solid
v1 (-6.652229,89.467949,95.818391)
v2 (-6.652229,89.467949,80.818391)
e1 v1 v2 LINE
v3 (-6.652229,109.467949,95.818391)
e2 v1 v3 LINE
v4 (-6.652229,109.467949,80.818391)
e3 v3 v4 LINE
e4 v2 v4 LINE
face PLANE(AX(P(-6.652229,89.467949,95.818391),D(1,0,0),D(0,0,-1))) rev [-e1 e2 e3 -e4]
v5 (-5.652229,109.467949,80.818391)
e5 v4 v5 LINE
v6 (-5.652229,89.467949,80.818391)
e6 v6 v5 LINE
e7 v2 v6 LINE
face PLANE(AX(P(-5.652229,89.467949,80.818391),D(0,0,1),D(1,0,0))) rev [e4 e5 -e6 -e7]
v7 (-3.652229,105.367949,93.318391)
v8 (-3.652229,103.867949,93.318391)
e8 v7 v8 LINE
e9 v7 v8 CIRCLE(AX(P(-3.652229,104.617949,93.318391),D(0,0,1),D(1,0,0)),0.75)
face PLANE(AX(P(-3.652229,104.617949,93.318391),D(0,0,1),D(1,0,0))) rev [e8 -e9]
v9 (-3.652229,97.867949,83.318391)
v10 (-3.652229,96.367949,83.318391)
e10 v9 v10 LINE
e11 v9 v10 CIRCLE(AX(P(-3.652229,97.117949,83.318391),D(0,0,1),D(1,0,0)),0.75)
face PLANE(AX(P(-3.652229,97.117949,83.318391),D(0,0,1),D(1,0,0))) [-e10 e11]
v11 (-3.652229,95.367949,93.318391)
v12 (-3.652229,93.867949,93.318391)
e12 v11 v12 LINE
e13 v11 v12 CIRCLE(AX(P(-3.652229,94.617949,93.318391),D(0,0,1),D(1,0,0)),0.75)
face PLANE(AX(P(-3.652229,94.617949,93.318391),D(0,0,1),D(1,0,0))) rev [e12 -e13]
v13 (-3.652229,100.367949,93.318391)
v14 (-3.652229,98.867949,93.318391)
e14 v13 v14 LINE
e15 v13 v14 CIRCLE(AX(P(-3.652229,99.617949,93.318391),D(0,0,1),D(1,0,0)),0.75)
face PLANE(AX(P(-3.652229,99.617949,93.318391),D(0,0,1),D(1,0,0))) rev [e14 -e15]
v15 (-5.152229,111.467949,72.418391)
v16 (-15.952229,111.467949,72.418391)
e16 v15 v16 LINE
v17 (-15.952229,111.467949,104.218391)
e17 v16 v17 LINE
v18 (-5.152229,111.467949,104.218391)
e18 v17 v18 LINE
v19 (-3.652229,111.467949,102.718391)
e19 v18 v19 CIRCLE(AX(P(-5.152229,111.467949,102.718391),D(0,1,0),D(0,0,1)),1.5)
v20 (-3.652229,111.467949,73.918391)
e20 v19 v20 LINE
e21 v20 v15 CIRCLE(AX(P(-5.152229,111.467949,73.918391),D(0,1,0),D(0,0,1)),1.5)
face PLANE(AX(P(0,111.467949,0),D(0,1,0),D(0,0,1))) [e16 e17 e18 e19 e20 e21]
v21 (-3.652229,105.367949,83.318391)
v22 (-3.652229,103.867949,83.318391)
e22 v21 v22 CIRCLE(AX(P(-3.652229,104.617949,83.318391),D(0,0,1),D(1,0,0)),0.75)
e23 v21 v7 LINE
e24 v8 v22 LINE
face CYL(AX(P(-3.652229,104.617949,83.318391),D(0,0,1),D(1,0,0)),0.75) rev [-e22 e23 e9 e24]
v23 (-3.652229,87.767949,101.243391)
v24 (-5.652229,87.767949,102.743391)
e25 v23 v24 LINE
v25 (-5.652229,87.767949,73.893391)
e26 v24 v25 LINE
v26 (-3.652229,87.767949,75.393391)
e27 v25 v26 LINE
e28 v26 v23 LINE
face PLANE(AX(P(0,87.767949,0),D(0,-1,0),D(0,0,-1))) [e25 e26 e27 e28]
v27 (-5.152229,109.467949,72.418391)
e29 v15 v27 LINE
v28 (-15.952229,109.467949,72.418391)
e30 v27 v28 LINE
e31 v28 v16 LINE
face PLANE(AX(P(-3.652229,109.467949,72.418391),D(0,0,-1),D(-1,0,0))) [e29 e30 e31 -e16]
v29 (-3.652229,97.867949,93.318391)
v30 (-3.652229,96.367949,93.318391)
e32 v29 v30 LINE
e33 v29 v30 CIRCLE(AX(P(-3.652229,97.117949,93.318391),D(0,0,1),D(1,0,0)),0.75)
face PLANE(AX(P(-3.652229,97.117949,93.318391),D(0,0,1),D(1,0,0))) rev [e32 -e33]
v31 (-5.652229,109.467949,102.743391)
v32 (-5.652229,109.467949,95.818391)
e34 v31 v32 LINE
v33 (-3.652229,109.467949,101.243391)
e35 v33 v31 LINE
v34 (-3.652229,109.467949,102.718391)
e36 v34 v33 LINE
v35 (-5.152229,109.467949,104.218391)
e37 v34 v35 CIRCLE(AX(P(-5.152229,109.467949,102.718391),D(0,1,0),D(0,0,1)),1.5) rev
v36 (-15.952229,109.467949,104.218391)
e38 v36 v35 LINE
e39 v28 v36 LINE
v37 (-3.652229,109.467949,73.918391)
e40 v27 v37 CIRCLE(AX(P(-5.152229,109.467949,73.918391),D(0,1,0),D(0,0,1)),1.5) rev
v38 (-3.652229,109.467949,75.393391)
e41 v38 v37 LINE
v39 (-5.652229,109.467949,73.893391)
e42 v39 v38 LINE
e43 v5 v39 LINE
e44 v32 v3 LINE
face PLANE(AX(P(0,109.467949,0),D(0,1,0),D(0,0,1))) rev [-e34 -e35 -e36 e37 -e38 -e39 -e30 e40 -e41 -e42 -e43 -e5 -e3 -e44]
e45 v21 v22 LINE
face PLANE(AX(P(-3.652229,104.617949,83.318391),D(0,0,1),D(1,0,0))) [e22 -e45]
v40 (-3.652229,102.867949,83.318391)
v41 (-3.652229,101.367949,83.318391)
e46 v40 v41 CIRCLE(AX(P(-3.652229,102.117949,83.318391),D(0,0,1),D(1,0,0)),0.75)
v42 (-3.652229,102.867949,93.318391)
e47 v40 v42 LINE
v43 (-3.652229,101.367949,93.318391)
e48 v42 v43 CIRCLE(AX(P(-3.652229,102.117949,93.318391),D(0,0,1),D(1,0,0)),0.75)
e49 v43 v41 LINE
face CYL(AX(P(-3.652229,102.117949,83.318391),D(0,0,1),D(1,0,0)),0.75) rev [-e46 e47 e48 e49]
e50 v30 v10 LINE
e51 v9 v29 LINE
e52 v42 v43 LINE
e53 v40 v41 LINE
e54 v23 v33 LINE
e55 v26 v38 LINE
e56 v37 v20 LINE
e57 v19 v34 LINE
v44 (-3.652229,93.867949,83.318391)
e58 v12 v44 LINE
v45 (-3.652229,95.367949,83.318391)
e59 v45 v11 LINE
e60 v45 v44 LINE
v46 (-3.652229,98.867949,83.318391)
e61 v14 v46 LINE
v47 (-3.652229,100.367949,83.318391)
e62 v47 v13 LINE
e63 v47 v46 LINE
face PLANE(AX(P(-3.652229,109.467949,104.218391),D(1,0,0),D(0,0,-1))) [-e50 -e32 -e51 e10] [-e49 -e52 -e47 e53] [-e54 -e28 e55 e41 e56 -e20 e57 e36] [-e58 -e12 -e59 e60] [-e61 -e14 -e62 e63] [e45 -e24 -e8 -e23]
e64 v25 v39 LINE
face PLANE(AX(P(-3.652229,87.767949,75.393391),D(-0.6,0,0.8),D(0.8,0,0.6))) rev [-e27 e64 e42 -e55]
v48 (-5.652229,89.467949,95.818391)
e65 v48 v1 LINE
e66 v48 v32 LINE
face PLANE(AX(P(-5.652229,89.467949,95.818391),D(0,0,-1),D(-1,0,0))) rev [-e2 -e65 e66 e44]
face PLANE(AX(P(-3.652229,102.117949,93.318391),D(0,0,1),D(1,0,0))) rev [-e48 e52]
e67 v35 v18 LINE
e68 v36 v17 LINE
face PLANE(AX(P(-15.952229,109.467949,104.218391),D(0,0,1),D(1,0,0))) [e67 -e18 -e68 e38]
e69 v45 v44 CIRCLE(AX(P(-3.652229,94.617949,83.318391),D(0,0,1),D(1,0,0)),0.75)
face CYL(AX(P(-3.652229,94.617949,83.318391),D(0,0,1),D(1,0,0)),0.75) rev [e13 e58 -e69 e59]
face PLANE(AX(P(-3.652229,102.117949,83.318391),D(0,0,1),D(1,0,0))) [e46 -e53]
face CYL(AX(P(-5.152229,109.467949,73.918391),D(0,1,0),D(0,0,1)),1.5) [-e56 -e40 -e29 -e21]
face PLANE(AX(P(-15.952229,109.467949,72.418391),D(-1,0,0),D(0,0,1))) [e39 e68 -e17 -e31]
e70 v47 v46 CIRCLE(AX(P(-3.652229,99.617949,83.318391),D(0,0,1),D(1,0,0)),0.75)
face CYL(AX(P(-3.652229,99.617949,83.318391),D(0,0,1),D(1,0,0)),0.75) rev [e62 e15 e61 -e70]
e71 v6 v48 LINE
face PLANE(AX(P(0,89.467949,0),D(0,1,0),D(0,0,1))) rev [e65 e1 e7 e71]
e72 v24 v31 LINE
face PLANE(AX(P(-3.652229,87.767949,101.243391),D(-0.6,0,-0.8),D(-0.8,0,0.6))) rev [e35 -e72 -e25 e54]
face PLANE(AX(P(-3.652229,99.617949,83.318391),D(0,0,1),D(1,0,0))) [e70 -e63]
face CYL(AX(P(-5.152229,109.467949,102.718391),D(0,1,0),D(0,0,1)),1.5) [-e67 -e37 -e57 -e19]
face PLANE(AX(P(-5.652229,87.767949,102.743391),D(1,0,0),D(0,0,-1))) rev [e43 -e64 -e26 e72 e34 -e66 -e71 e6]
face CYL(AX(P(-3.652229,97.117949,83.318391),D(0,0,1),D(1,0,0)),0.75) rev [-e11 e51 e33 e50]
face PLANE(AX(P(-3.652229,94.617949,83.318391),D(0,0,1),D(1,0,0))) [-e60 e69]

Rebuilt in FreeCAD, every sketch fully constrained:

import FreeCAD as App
import Part
import Sketcher


def edges_at(feature, points):
    """Names of the edges that pass closest to the given points."""
    edges = feature.Shape.Edges
    near = lambda p: min(range(len(edges)), key=lambda i: edges[i].distToShape(Part.Vertex(*p))[0])
    return sorted({f"Edge{near(p) + 1}" for p in points})

doc = App.newDocument("Part")
params = doc.addObject("Spreadsheet::Sheet", "Params")
for row, (alias, value) in enumerate([
    ("sketch1_width", "12.3 mm"),
    ("sketch1_height", "31.8 mm"),
    ("pad1_length", "2 mm"),
    ("sketch2_length", "2.5 mm"),
    ("sketch2_height", "28.85 mm"),
    ("pad2_length", "21.7 mm"),
    ("sketch3_width", "1 mm"),
    ("sketch3_height", "15 mm"),
    ("pad3_length", "20 mm"),
    ("sketch4_diameter", "1.5 mm"),
    ("pocket1_length", "10 mm"),
    ("fillet_radius", "1.5 mm"),
], start=1):
    params.set(f"A{row}", alias)
    params.set(f"B{row}", "=" + value)
    params.setAlias(f"B{row}", alias)

body = doc.addObject("PartDesign::Body", "Body")

# Sketch on XZ plane
sketch1 = body.newObject("Sketcher::SketchObject", "Sketch")
sketch1.AttachmentSupport = (doc.getObject("XZ_Plane"), [""])
sketch1.MapMode = "FlatFace"
sketch1.AttachmentOffset = App.Placement(App.Vector(0, 0, -111.467949), App.Rotation())
sketch1.addGeometry([
    Part.LineSegment(App.Vector(-16, 72, 0), App.Vector(-16, 104, 0)),
    Part.LineSegment(App.Vector(-16, 104, 0), App.Vector(-4, 104, 0)),
    Part.LineSegment(App.Vector(-4, 104, 0), App.Vector(-4, 72, 0)),
    Part.LineSegment(App.Vector(-4, 72, 0), App.Vector(-16, 72, 0)),
], False)
sketch1.addConstraint([
    Sketcher.Constraint("Coincident", 0, 2, 1, 1),
    Sketcher.Constraint("Coincident", 1, 2, 2, 1),
    Sketcher.Constraint("Coincident", 2, 2, 3, 1),
    Sketcher.Constraint("Coincident", 3, 2, 0, 1),
    Sketcher.Constraint("Vertical", 0),
    Sketcher.Constraint("Horizontal", 1),
    Sketcher.Constraint("Vertical", 2),
    Sketcher.Constraint("Horizontal", 3),
    Sketcher.Constraint("DistanceX", 1, 1, 1, 2, 12.3),
    Sketcher.Constraint("DistanceY", 0, 1, 0, 2, 31.8),
    Sketcher.Constraint("DistanceX", 0, 2, -1, 1, 15.952229),
    Sketcher.Constraint("DistanceY", -1, 1, 0, 2, 104.218391),
])
sketch1.setExpression("Constraints[8]", "Params.sketch1_width")
sketch1.setExpression("Constraints[9]", "Params.sketch1_height")
pad1 = body.newObject("PartDesign::Pad", "Pad")
pad1.Profile = sketch1
pad1.setExpression("Length", "Params.pad1_length")

# Sketch on XZ plane
sketch2 = body.newObject("Sketcher::SketchObject", "Sketch001")
sketch2.AttachmentSupport = (doc.getObject("XZ_Plane"), [""])
sketch2.MapMode = "FlatFace"
sketch2.AttachmentOffset = App.Placement(App.Vector(0, 0, -109.467949), App.Rotation())
sketch2.addGeometry([
    Part.LineSegment(App.Vector(-3.7, 101.2, 0), App.Vector(-5.7, 102.7, 0)),
    Part.LineSegment(App.Vector(-5.7, 102.7, 0), App.Vector(-5.7, 73.9, 0)),
    Part.LineSegment(App.Vector(-5.7, 73.9, 0), App.Vector(-3.7, 75.4, 0)),
    Part.LineSegment(App.Vector(-3.7, 75.4, 0), App.Vector(-3.7, 101.2, 0)),
], False)
sketch2.addConstraint([
    Sketcher.Constraint("Coincident", 0, 2, 1, 1),
    Sketcher.Constraint("Coincident", 1, 2, 2, 1),
    Sketcher.Constraint("Coincident", 2, 2, 3, 1),
    Sketcher.Constraint("Coincident", 3, 2, 0, 1),
    Sketcher.Constraint("Vertical", 1),
    Sketcher.Constraint("Vertical", 3),
    Sketcher.Constraint("Equal", 0, 2),
    Sketcher.Constraint("DistanceX", 1, 2, 2, 2, 2.0),
    Sketcher.Constraint("Distance", 0, 2.5),
    Sketcher.Constraint("DistanceY", 1, 2, 1, 1, 28.85),
    Sketcher.Constraint("DistanceX", 0, 2, -1, 1, 5.652229),
    Sketcher.Constraint("DistanceY", -1, 1, 0, 2, 102.743391),
])
sketch2.setExpression("Constraints[8]", "Params.sketch2_length")
sketch2.setExpression("Constraints[9]", "Params.sketch2_height")
pad2 = body.newObject("PartDesign::Pad", "Pad001")
pad2.Profile = sketch2
pad2.setExpression("Length", "Params.pad2_length")

# Sketch on XZ plane
sketch3 = body.newObject("Sketcher::SketchObject", "Sketch002")
sketch3.AttachmentSupport = (doc.getObject("XZ_Plane"), [""])
sketch3.MapMode = "FlatFace"
sketch3.AttachmentOffset = App.Placement(App.Vector(0, 0, -109.467949), App.Rotation())
sketch3.addGeometry([
    Part.LineSegment(App.Vector(-6.7, 95.8, 0), App.Vector(-6.7, 80.8, 0)),
    Part.LineSegment(App.Vector(-6.7, 80.8, 0), App.Vector(-5.7, 80.8, 0)),
    Part.LineSegment(App.Vector(-5.7, 80.8, 0), App.Vector(-5.7, 95.8, 0)),
    Part.LineSegment(App.Vector(-5.7, 95.8, 0), App.Vector(-6.7, 95.8, 0)),
], False)
sketch3.addConstraint([
    Sketcher.Constraint("Coincident", 0, 2, 1, 1),
    Sketcher.Constraint("Coincident", 1, 2, 2, 1),
    Sketcher.Constraint("Coincident", 2, 2, 3, 1),
    Sketcher.Constraint("Coincident", 3, 2, 0, 1),
    Sketcher.Constraint("Vertical", 0),
    Sketcher.Constraint("Horizontal", 1),
    Sketcher.Constraint("Vertical", 2),
    Sketcher.Constraint("Horizontal", 3),
    Sketcher.Constraint("DistanceX", 1, 1, 1, 2, 1.0),
    Sketcher.Constraint("DistanceY", 0, 2, 0, 1, 15.0),
    Sketcher.Constraint("DistanceX", 0, 2, -1, 1, 6.652229),
    Sketcher.Constraint("DistanceY", -1, 1, 0, 2, 80.818391),
])
sketch3.setExpression("Constraints[8]", "Params.sketch3_width")
sketch3.setExpression("Constraints[9]", "Params.sketch3_height")
pad3 = body.newObject("PartDesign::Pad", "Pad002")
pad3.Profile = sketch3
pad3.setExpression("Length", "Params.pad3_length")

# Sketch on XY plane
sketch4 = body.newObject("Sketcher::SketchObject", "Sketch003")
sketch4.AttachmentSupport = (doc.getObject("XY_Plane"), [""])
sketch4.MapMode = "FlatFace"
sketch4.AttachmentOffset = App.Placement(App.Vector(0, 0, 88.318391), App.Rotation())
sketch4.addGeometry([
    Part.Circle(App.Vector(-3.7, 104.6, 0), App.Vector(0, 0, 1), 0.8),  # 0
    Part.Circle(App.Vector(-3.7, 102.1, 0), App.Vector(0, 0, 1), 0.8),  # 1
    Part.Circle(App.Vector(-3.7, 99.6, 0), App.Vector(0, 0, 1), 0.8),  # 2
    Part.Circle(App.Vector(-3.7, 97.1, 0), App.Vector(0, 0, 1), 0.8),  # 3
    Part.Circle(App.Vector(-3.7, 94.6, 0), App.Vector(0, 0, 1), 0.8),  # 4
], False)
sketch4.addConstraint([
    Sketcher.Constraint("Equal", 0, 1),
    Sketcher.Constraint("Equal", 1, 2),
    Sketcher.Constraint("Equal", 2, 3),
    Sketcher.Constraint("Equal", 3, 4),
    Sketcher.Constraint("Vertical", 0, 3, 1, 3),
    Sketcher.Constraint("Vertical", 1, 3, 2, 3),
    Sketcher.Constraint("Vertical", 2, 3, 3, 3),
    Sketcher.Constraint("Vertical", 3, 3, 4, 3),
    Sketcher.Constraint("Diameter", 0, 1.5),
    Sketcher.Constraint("DistanceY", 2, 3, 0, 3, 5.0),
    Sketcher.Constraint("DistanceY", 3, 3, 1, 3, 5.0),
    Sketcher.Constraint("DistanceY", 4, 3, 2, 3, 5.0),
    Sketcher.Constraint("DistanceY", 1, 3, 0, 3, 2.5),
    Sketcher.Constraint("DistanceX", 0, 3, -1, 1, 3.652229),
    Sketcher.Constraint("DistanceY", -1, 1, 0, 3, 104.617949),
])
sketch4.setExpression("Constraints[8]", "Params.sketch4_diameter")
pocket1 = body.newObject("PartDesign::Pocket", "Pocket")
pocket1.Profile = sketch4
pocket1.setExpression("Length", "Params.pocket1_length")
pocket1.Midplane = True
doc.recompute()

fillet = body.newObject("PartDesign::Fillet", "Fillet")
fillet.Base = (pocket1, edges_at(pocket1, [(-3.652, 110.468, 72.418), (-3.652, 110.468, 104.218)]))
fillet.setExpression("Radius", "Params.fillet_radius")

doc.recompute()
